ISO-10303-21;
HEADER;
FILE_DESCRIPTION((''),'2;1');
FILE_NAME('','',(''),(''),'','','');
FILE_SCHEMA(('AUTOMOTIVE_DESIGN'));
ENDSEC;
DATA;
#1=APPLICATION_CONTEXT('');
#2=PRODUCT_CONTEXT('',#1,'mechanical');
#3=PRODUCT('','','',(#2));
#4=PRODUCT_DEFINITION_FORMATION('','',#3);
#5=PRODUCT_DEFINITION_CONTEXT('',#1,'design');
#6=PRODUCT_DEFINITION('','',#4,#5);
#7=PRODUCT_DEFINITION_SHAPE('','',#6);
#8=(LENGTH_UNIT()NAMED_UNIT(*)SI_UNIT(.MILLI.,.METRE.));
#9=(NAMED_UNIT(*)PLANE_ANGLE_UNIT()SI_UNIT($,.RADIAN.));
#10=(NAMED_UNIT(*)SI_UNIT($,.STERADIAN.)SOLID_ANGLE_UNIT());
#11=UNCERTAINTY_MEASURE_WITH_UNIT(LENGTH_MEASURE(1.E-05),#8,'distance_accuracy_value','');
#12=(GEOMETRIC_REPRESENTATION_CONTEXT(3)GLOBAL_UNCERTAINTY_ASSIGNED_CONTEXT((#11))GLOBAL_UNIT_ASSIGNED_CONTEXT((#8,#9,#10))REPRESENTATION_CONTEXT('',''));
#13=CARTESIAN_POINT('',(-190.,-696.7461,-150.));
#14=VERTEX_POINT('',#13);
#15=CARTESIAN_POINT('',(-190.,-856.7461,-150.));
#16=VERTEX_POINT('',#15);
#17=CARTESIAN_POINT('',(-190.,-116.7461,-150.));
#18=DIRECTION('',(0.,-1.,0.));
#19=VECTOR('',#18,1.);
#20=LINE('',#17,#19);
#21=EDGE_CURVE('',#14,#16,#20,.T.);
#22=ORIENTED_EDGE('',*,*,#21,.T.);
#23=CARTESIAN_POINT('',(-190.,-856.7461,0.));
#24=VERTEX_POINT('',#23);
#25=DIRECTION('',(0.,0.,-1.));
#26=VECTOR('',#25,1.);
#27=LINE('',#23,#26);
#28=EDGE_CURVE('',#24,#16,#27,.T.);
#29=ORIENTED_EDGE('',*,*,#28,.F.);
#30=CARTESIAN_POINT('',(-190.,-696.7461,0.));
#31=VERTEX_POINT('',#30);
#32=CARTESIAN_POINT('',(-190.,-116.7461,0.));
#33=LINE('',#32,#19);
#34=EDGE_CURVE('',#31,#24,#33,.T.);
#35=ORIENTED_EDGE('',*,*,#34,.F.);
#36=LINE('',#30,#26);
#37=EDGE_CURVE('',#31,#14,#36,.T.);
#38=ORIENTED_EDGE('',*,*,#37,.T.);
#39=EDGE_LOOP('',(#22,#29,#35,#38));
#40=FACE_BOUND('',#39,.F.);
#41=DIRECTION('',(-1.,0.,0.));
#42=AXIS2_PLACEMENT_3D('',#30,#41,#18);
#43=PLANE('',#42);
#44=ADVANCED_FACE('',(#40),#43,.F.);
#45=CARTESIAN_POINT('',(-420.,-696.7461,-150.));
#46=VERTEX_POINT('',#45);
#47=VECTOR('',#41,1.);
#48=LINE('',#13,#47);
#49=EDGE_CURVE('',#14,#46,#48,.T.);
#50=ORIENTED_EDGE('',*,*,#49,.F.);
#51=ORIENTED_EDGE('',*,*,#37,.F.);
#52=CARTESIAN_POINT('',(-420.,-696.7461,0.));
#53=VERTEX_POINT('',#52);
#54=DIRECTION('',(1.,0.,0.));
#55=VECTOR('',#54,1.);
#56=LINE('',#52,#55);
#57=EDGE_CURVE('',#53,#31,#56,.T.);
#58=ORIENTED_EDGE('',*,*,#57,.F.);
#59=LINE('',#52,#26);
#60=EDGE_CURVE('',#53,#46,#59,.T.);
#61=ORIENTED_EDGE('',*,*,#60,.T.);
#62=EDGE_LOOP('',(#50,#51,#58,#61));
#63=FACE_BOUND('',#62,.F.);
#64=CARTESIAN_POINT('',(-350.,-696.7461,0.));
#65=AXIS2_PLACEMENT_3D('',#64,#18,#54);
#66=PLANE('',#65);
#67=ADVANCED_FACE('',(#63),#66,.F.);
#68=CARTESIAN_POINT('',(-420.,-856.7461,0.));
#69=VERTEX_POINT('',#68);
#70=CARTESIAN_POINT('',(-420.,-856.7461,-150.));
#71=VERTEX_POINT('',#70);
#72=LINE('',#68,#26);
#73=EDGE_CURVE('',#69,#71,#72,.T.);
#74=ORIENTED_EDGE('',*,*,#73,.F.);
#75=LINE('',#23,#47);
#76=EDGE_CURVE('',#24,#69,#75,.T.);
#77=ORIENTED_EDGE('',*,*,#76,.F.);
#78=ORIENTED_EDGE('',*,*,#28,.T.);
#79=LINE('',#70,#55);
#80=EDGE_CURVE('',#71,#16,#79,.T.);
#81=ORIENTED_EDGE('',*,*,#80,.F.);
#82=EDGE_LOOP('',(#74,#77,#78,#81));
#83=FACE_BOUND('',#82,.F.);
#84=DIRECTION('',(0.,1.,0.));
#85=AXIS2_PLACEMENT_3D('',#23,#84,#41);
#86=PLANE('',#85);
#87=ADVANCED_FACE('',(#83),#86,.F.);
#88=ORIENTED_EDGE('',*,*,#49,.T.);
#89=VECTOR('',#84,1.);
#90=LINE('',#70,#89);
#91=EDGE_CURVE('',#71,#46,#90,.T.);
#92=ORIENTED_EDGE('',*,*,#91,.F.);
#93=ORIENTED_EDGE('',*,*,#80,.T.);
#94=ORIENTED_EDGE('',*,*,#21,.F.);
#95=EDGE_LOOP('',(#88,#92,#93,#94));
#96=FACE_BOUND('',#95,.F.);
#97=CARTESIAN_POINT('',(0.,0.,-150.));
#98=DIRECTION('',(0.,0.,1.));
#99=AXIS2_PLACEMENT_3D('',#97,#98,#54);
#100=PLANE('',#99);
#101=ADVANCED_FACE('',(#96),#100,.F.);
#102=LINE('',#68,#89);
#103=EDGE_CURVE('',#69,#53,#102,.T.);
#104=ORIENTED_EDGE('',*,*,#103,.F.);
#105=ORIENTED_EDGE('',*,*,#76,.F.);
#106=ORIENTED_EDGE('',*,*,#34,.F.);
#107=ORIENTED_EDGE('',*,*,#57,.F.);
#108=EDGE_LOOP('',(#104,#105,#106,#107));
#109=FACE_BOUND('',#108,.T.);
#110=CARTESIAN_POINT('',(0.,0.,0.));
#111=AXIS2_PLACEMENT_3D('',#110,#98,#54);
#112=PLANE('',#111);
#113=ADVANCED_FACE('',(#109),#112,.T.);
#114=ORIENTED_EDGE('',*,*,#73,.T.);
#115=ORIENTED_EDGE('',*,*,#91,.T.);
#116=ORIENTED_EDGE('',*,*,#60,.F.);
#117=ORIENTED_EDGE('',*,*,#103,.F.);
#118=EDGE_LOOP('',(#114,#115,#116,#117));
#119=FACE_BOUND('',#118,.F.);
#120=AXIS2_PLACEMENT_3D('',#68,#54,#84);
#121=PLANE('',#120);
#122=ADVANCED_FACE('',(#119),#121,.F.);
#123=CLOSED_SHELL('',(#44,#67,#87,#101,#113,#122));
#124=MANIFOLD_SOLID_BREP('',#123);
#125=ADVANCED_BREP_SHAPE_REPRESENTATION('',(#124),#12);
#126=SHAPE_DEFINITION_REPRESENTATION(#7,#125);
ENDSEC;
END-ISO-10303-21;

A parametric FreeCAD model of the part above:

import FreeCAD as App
import Part
import Sketcher
from FreeCAD import Vector

doc = App.newDocument("Part")
body = doc.addObject("PartDesign::Body", "Body")

sketch1 = doc.addObject("Sketcher::SketchObject", "Sketch")
body.addObject(sketch1)
sketch1.AttachmentSupport = (doc.XY_Plane, [""])
sketch1.MapMode = "FlatFace"
sketch1.addGeometry([
    Part.LineSegment(Vector(-190, -857, 0), Vector(-190, -697, 0)),
    Part.LineSegment(Vector(-190, -697, 0), Vector(-420, -697, 0)),
    Part.LineSegment(Vector(-420, -697, 0), Vector(-420, -857, 0)),
    Part.LineSegment(Vector(-420, -857, 0), Vector(-190, -857, 0)),
], False)
sketch1.addConstraint([
    Sketcher.Constraint("Coincident", 0, 2, 1, 1),
    Sketcher.Constraint("Coincident", 1, 2, 2, 1),
    Sketcher.Constraint("Coincident", 2, 2, 3, 1),
    Sketcher.Constraint("Coincident", 3, 2, 0, 1),
    Sketcher.Constraint("Vertical", 0),
    Sketcher.Constraint("Horizontal", 1),
    Sketcher.Constraint("Vertical", 2),
    Sketcher.Constraint("Horizontal", 3),
    Sketcher.Constraint("DistanceX", 1, 2, 1, 1, 230.0),
    Sketcher.Constraint("DistanceY", 0, 1, 0, 2, 160.0),
    Sketcher.Constraint("DistanceX", 0, 2, -1, 1, 190.0),
    Sketcher.Constraint("DistanceY", 0, 2, -1, 1, 696.746),
])
pad1 = doc.addObject("PartDesign::Pad", "Pad")
body.addObject(pad1)
pad1.Profile = sketch1
pad1.Length = 150
pad1.Reversed = True

doc.recompute()
